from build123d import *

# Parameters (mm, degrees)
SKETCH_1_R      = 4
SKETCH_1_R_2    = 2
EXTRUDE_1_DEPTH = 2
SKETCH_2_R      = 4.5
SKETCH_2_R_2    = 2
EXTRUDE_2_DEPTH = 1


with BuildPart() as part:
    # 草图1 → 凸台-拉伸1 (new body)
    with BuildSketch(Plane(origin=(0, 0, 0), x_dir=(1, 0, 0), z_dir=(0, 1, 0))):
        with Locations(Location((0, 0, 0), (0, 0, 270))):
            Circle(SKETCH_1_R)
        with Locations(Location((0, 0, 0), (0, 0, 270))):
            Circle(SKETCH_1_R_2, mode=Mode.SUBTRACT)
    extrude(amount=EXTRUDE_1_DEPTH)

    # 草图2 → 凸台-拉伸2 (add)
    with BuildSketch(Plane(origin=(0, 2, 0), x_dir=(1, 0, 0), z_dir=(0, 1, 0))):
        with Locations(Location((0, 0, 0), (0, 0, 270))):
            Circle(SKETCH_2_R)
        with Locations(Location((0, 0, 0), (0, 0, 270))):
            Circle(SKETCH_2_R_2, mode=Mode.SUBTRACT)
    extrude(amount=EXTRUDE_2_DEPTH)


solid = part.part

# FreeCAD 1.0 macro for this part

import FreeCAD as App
import Part
import Sketcher

V = App.Vector
Q = App.Units.Quantity

doc = App.newDocument("Part")
body = doc.addObject("PartDesign::Body", "Body")

sketch1 = body.newObject("Sketcher::SketchObject", "Sketch")
sketch1.AttachmentSupport = (doc.getObject("XZ_Plane"), [""])
sketch1.MapMode = "FlatFace"
sketch1.addGeometry(Part.Circle(V(0, 0, 0), V(0, 0, 1), 4), False)
sketch1.addGeometry(Part.Circle(V(0, 0, 0), V(0, 0, 1), 2), False)
sketch1.addConstraint(Sketcher.Constraint("Coincident", 0, 3, -1, 1))
sketch1.addConstraint(Sketcher.Constraint("Coincident", 1, 3, -1, 1))
sketch1.addConstraint(Sketcher.Constraint("Diameter", 0, Q("8 mm")))
sketch1.addConstraint(Sketcher.Constraint("Diameter", 1, Q("4 mm")))
pad1 = body.newObject("PartDesign::Pad", "Pad")
pad1.Profile = sketch1
pad1.Length = 2
pad1.Reversed = True

sketch2 = body.newObject("Sketcher::SketchObject", "Sketch001")
sketch2.AttachmentSupport = (doc.getObject("XZ_Plane"), [""])
sketch2.MapMode = "FlatFace"
sketch2.AttachmentOffset = App.Placement(V(0, 0, -2), App.Rotation())
sketch2.addGeometry(Part.Circle(V(0, 0, 0), V(0, 0, 1), 4.5), False)
sketch2.addGeometry(Part.Circle(V(0, 0, 0), V(0, 0, 1), 2), False)
sketch2.addConstraint(Sketcher.Constraint("Coincident", 0, 3, -1, 1))
sketch2.addConstraint(Sketcher.Constraint("Coincident", 1, 3, -1, 1))
sketch2.addConstraint(Sketcher.Constraint("Diameter", 0, Q("9 mm")))
sketch2.addConstraint(Sketcher.Constraint("Diameter", 1, Q("4 mm")))
pad2 = body.newObject("PartDesign::Pad", "Pad001")
pad2.Profile = sketch2
pad2.Length = 1
pad2.Reversed = True

doc.recompute()
